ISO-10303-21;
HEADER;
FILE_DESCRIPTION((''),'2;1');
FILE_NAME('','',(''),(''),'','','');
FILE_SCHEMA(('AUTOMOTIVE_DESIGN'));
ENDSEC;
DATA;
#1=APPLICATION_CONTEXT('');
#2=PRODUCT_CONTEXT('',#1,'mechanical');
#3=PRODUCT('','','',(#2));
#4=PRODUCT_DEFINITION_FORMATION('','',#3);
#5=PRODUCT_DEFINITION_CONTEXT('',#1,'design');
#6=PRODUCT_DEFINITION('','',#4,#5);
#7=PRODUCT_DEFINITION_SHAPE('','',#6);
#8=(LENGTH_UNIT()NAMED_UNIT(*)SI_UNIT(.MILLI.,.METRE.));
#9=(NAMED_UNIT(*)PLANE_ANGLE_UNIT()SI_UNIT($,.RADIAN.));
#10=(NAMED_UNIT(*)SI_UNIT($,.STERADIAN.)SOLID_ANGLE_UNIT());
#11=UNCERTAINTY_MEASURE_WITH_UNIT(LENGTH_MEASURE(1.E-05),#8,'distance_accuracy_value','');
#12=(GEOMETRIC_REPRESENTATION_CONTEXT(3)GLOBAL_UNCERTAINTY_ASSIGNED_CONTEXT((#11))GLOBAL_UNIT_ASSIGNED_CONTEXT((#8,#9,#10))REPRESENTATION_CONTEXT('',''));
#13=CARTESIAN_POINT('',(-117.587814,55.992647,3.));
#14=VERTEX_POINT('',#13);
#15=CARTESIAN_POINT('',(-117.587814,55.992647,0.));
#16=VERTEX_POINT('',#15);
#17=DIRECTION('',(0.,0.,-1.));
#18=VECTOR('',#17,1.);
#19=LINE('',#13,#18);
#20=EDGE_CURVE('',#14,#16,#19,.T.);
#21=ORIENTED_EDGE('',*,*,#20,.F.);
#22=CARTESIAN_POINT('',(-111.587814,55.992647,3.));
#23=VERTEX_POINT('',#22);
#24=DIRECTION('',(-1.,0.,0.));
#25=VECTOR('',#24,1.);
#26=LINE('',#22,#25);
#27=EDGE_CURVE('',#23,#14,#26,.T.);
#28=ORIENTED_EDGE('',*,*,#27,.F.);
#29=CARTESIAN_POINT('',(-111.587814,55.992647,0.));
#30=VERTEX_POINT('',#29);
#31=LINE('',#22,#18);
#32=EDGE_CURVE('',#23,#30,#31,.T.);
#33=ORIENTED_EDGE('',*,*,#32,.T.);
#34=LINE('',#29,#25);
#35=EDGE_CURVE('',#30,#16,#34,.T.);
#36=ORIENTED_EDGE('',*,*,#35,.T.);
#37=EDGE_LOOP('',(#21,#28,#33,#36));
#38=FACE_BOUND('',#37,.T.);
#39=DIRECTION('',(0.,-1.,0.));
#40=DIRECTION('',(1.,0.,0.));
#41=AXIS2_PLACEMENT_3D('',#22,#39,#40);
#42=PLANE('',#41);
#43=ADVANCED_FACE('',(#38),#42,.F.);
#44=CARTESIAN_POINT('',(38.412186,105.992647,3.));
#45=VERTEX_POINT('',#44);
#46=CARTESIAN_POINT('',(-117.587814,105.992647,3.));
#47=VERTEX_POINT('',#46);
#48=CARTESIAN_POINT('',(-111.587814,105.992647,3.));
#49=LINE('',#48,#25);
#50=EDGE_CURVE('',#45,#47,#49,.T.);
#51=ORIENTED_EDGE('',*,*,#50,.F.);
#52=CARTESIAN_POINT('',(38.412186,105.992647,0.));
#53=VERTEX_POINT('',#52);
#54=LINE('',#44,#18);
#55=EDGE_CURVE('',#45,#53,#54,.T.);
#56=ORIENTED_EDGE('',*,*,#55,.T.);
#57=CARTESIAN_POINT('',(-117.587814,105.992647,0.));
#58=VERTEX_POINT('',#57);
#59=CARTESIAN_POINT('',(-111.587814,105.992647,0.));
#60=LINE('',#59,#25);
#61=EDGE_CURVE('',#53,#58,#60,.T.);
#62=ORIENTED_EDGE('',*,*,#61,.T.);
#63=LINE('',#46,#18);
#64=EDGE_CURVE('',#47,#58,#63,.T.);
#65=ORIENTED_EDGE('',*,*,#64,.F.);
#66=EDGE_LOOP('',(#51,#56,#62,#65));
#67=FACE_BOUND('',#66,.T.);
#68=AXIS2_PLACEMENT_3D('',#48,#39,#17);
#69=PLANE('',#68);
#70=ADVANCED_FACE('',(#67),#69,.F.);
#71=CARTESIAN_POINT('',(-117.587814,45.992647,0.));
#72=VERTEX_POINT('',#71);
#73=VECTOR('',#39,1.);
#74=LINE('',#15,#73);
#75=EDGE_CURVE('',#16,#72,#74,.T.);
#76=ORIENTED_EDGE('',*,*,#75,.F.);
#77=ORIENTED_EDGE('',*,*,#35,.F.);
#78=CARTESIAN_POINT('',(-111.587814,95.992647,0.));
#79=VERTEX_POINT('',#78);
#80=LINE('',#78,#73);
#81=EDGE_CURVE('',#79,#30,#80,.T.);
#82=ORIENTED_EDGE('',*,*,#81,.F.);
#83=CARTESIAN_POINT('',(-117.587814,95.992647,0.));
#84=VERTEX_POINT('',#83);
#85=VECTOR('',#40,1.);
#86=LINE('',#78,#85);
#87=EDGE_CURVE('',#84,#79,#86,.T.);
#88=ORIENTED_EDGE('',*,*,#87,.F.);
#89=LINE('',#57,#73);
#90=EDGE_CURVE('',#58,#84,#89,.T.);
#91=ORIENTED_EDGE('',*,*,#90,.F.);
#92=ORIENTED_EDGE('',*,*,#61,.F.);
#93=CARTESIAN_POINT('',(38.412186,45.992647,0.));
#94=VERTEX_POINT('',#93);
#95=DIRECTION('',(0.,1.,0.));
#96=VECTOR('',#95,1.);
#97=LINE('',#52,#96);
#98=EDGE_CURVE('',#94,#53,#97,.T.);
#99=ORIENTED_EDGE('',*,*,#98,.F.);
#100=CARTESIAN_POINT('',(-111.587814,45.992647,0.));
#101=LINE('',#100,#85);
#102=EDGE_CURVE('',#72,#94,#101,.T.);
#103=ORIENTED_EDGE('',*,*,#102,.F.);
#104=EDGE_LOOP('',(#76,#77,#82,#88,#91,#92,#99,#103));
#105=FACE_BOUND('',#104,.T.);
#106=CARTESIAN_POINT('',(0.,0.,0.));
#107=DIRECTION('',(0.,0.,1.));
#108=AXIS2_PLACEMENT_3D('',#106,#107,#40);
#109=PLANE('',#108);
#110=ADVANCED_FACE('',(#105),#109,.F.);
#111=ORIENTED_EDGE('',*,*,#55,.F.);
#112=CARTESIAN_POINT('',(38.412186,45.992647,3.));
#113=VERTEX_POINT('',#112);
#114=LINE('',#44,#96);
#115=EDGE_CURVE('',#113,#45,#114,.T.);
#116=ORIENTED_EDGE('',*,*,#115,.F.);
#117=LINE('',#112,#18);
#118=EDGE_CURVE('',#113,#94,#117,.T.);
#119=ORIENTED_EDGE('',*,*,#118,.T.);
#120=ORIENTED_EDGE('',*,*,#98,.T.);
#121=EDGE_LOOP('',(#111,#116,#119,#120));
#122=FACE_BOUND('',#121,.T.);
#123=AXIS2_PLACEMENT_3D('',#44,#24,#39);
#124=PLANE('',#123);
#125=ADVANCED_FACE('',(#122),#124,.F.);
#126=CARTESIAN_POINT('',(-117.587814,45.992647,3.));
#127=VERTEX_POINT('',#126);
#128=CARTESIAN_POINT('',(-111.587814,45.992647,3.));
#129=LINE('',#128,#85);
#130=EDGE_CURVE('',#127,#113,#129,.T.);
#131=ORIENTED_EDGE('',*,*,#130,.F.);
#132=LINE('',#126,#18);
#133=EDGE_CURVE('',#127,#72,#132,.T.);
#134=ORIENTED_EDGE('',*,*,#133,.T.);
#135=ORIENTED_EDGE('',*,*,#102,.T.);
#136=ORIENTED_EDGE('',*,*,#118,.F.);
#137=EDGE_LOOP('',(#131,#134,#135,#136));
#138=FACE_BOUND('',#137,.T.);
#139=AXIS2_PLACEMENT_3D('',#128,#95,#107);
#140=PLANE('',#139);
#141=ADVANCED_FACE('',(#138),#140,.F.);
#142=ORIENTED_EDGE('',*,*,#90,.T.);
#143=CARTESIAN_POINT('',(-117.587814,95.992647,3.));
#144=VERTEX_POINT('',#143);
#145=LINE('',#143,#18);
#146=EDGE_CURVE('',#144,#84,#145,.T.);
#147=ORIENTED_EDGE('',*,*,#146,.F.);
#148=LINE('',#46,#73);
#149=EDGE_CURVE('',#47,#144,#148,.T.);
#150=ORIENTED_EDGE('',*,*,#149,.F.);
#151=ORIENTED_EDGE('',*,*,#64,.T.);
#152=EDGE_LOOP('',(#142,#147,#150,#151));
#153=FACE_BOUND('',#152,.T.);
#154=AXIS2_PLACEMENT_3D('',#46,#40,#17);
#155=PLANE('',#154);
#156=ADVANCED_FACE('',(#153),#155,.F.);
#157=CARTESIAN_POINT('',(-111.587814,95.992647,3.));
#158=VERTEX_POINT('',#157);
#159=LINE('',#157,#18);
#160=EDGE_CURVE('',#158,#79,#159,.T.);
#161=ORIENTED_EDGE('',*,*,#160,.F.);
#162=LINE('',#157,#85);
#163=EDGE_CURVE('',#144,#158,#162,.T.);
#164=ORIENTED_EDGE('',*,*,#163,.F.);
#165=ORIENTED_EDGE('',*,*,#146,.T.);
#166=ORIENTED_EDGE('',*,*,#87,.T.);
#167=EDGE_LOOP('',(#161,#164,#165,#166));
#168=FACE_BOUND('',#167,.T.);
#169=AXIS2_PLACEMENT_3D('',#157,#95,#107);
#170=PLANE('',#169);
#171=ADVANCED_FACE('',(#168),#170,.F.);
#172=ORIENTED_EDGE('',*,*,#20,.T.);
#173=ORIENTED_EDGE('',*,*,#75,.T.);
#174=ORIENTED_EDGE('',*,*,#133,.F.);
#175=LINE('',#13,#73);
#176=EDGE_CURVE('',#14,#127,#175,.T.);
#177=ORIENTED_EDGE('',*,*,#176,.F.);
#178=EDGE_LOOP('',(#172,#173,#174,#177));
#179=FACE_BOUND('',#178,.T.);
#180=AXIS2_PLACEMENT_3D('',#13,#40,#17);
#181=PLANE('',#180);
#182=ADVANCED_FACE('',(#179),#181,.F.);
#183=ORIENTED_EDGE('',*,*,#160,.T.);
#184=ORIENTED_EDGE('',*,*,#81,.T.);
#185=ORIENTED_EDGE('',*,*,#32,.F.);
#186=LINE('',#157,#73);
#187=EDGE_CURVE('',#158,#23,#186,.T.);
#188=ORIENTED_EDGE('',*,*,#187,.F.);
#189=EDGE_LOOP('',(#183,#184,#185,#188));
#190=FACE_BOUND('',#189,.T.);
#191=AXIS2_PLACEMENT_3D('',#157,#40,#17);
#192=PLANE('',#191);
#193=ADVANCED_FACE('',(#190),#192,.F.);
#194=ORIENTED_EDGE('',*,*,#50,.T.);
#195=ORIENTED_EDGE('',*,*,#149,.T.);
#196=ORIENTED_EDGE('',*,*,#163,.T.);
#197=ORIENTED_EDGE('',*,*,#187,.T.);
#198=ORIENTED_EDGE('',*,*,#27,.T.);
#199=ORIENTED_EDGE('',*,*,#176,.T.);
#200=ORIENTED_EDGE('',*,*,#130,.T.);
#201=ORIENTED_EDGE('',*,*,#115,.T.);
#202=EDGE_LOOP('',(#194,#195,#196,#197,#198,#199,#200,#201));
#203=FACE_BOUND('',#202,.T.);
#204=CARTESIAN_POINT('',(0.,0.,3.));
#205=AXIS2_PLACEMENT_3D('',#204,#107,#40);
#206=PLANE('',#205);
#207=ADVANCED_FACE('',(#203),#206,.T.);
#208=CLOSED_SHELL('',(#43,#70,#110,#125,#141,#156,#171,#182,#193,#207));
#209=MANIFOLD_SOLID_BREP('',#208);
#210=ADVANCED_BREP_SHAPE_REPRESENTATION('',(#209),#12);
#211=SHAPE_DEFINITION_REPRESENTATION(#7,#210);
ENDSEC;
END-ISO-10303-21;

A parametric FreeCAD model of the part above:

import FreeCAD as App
import Part
import Sketcher

V = App.Vector


def add_polygon(sketch, points):
    """Adds a closed chain of lines whose ends are joined by coincident constraints."""
    first, n = sketch.GeometryCount, len(points)
    for a, b in zip(points, points[1:] + points[:1]):
        sketch.addGeometry(Part.LineSegment(App.Vector(*a, 0), App.Vector(*b, 0)), False)
    for i in range(n):
        sketch.addConstraint(Sketcher.Constraint("Coincident", first + i, 2, first + (i + 1) % n, 1))

doc = App.newDocument("Part")
body = doc.addObject("PartDesign::Body", "Body")

sketch1 = doc.addObject("Sketcher::SketchObject", "Sketch")
body.addObject(sketch1)
sketch1.AttachmentSupport = (doc.XY_Plane, [""])
sketch1.MapMode = "FlatFace"
add_polygon(sketch1, [(38, 106), (-118, 106), (-118, 96), (-112, 96), (-112, 56), (-118, 56), (-118, 46), (38, 46)])
sketch1.addConstraint([
    Sketcher.Constraint("Horizontal", 0),
    Sketcher.Constraint("Vertical", 1),
    Sketcher.Constraint("Horizontal", 2),
    Sketcher.Constraint("Vertical", 3),
    Sketcher.Constraint("Horizontal", 4),
    Sketcher.Constraint("Vertical", 5),
    Sketcher.Constraint("Horizontal", 6),
    Sketcher.Constraint("Vertical", 7),
    Sketcher.Constraint("Vertical", 1, 2, 4, 2),
    Sketcher.Constraint("Equal", 1, 5),
    Sketcher.Constraint("DistanceX", 0, 2, 0, 1, 156.0),
    Sketcher.Constraint("DistanceX", 2, 1, 2, 2, 6.0),
    Sketcher.Constraint("DistanceY", 1, 2, 1, 1, 10.0),
    Sketcher.Constraint("DistanceY", 3, 2, 3, 1, 40.0),
    Sketcher.Constraint("DistanceX", 0, 2, -1, 1, 117.587814),
    Sketcher.Constraint("DistanceY", -1, 1, 0, 2, 105.992647),
])
pad1 = doc.addObject("PartDesign::Pad", "Pad")
body.addObject(pad1)
pad1.Profile = sketch1
pad1.Length = 3

doc.recompute()
